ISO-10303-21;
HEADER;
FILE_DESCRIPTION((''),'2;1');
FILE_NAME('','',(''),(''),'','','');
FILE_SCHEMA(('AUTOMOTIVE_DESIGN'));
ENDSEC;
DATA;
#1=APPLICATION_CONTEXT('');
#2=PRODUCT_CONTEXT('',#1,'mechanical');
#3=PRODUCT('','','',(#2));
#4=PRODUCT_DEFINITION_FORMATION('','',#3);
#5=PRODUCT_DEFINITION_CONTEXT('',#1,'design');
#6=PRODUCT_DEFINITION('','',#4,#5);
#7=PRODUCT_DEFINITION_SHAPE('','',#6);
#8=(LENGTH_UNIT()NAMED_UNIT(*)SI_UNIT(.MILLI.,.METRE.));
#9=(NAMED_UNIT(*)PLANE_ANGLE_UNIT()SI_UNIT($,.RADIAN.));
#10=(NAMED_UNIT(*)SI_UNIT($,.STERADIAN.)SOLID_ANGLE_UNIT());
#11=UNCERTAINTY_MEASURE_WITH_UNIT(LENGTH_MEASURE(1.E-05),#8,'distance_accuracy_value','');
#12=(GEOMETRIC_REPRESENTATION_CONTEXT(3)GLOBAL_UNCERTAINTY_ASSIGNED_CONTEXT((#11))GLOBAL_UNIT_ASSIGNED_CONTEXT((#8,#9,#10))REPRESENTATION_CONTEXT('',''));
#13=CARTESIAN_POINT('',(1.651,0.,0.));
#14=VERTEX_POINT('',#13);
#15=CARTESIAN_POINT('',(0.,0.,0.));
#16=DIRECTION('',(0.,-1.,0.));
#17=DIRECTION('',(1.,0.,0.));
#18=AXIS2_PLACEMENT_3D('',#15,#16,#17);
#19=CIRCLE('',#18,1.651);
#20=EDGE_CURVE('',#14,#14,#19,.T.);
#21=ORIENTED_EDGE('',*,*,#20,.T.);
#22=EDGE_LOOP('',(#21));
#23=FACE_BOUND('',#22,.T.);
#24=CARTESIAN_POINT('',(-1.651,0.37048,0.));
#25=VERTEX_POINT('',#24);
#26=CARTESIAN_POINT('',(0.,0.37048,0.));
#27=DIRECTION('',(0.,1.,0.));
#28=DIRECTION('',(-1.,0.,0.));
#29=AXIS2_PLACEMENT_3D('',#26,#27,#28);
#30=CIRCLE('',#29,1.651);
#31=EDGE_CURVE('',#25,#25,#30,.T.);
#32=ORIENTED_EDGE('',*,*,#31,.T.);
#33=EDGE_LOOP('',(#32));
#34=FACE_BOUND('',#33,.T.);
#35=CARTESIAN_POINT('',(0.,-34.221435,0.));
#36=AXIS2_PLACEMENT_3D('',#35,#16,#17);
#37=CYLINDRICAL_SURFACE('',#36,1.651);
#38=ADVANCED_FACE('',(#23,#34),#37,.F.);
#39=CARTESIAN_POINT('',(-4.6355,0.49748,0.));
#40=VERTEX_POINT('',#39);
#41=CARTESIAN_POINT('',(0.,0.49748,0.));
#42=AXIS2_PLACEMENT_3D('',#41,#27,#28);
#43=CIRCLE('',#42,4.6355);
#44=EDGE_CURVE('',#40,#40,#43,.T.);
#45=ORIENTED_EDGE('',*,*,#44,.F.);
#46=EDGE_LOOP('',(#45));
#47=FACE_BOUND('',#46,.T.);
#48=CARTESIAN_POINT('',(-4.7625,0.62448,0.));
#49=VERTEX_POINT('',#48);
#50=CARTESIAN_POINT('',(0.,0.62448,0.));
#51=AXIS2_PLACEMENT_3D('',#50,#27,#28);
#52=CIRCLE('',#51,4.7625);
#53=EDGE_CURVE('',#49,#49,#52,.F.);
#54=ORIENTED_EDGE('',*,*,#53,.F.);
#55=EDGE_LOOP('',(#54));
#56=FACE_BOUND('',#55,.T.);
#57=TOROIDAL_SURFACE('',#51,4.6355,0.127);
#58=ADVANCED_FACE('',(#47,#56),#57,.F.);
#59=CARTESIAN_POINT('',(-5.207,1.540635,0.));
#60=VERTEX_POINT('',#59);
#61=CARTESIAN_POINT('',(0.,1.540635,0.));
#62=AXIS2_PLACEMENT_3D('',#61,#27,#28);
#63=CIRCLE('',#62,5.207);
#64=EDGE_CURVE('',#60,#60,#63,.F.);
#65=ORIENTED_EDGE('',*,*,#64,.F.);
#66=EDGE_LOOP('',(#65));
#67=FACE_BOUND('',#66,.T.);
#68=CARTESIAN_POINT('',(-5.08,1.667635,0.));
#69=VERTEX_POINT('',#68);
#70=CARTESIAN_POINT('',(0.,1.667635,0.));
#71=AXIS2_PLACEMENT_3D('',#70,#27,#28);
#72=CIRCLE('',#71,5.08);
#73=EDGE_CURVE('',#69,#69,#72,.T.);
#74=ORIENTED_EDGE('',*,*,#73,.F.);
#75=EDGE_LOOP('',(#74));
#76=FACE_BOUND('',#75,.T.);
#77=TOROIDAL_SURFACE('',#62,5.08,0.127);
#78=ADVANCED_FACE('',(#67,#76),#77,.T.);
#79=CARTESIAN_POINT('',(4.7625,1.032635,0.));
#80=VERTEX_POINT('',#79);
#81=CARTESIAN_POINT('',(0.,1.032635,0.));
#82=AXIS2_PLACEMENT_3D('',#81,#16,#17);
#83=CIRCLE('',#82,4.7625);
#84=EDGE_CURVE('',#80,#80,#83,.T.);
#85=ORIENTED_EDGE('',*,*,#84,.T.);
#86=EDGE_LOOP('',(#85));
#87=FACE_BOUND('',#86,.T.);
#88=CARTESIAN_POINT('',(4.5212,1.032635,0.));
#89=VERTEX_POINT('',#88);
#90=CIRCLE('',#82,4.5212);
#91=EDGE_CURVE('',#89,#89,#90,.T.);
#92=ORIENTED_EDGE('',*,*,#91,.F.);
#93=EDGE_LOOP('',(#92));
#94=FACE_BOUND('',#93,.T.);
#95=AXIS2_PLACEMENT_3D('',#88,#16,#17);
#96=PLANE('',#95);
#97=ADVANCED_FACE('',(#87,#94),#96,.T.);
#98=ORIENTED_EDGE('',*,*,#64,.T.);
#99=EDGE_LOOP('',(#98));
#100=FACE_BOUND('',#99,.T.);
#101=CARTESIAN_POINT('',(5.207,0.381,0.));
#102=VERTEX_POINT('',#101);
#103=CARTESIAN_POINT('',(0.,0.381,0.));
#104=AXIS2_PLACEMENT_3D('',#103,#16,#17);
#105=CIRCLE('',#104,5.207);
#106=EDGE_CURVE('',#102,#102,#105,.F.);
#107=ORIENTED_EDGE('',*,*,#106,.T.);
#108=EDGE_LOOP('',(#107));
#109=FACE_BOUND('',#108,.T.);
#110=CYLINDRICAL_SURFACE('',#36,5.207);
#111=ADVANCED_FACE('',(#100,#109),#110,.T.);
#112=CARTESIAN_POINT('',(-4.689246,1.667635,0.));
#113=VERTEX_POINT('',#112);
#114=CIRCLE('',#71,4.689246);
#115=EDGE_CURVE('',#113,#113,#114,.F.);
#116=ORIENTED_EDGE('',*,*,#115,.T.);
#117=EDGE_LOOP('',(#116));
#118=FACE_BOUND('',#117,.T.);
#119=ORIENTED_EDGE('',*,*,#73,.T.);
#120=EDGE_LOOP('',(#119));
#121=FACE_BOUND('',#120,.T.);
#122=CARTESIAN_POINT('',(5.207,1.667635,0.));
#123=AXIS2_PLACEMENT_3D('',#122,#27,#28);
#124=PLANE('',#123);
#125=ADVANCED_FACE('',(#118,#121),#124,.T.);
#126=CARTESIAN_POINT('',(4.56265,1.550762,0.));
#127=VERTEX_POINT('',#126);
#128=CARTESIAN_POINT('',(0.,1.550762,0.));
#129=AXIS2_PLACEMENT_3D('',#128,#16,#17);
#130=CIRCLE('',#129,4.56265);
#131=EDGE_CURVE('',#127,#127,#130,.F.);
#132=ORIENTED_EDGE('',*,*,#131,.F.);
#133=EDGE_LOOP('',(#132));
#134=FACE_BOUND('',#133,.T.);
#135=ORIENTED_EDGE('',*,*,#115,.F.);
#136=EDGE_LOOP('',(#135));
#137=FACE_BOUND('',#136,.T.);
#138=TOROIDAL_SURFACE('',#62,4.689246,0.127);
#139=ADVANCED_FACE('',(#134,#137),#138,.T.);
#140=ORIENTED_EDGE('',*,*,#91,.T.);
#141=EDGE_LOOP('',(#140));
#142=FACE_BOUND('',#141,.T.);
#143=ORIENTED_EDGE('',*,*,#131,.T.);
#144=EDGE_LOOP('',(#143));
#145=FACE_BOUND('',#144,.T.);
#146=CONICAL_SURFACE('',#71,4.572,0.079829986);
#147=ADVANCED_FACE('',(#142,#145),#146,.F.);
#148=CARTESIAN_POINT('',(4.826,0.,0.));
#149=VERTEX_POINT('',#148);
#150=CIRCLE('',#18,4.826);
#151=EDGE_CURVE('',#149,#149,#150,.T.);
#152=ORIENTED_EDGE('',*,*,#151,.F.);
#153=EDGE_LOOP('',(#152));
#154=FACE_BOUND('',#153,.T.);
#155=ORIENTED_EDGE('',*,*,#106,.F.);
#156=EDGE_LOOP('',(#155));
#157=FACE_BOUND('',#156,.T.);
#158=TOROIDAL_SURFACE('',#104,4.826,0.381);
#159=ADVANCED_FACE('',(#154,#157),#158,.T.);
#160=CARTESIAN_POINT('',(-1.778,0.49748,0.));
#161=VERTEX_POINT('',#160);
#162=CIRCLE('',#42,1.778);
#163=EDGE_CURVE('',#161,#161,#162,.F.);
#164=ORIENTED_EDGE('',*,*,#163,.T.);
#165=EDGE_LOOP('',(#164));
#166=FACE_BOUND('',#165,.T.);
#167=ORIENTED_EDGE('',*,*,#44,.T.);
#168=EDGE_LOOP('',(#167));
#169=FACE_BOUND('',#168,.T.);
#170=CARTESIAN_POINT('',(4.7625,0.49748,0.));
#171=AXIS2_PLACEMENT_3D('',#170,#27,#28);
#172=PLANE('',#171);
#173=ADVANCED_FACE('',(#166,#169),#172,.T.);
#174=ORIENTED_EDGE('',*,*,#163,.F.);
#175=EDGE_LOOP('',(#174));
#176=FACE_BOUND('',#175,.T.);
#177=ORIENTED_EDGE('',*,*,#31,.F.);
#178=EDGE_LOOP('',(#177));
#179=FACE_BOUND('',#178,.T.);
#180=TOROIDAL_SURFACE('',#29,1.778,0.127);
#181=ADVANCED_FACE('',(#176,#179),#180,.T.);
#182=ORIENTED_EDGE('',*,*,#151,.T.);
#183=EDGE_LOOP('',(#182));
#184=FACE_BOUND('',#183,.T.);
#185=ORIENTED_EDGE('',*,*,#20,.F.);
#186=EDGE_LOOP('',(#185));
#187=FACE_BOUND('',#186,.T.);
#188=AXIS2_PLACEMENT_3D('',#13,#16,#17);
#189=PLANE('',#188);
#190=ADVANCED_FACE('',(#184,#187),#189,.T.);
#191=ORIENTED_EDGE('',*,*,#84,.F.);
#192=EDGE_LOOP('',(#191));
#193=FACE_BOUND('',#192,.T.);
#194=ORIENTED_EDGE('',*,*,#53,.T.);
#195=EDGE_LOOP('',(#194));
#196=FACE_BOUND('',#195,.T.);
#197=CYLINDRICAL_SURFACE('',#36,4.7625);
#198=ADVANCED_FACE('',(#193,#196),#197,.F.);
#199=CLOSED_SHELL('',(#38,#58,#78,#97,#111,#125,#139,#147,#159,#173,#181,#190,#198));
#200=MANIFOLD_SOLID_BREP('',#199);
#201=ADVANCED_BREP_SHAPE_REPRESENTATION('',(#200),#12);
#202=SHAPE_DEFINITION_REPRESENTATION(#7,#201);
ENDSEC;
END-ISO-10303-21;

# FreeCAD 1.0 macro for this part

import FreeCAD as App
import Part
import Sketcher

V = App.Vector
Q = App.Units.Quantity


def edges_at(feature, points):
    """Names of the edges that pass closest to the given points."""
    edges = feature.Shape.Edges
    near = lambda p: min(range(len(edges)), key=lambda i: edges[i].distToShape(Part.Vertex(*p))[0])
    return sorted({f"Edge{near(p) + 1}" for p in points})


def add_polygon(sketch, points):
    """Adds a closed chain of lines whose ends are joined by coincident constraints."""
    first, n = sketch.GeometryCount, len(points)
    for a, b in zip(points, points[1:] + points[:1]):
        sketch.addGeometry(Part.LineSegment(App.Vector(*a, 0), App.Vector(*b, 0)), False)
    for i in range(n):
        sketch.addConstraint(Sketcher.Constraint("Coincident", first + i, 2, first + (i + 1) % n, 1))

doc = App.newDocument("Part")
params = doc.addObject("Spreadsheet::Sheet", "Params")
for row, (alias, value) in enumerate([
    ("sketch1_width", "0.14 in"),
    ("sketch1_width2", "0.025 in"),
    ("revolution_angle", "360 deg"),
    ("fillet_radius", "0.015 in"),
    ("fillet2_radius", "0.005 in"),
], start=1):
    params.set(f"A{row}", alias)
    params.set(f"B{row}", "=" + value)
    params.setAlias(f"B{row}", alias)

body = doc.addObject("PartDesign::Body", "Body")

# Sketch on XY plane
sketch1 = body.newObject("Sketcher::SketchObject", "Sketch")
sketch1.AttachmentSupport = (doc.getObject("XY_Plane"), [""])
sketch1.MapMode = "FlatFace"
add_polygon(sketch1, [(1.65, 0), (5.21, 0), (5.21, 1.67), (4.57, 1.67), (4.52, 1.03), (4.76, 1.03), (4.76, 0.5), (1.65, 0.5)])  # lines 0-7
sketch1.addConstraint([
    Sketcher.Constraint("Horizontal", 0),
    Sketcher.Constraint("Vertical", 1),
    Sketcher.Constraint("Horizontal", 2),
    Sketcher.Constraint("Horizontal", 4),
    Sketcher.Constraint("Vertical", 5),
    Sketcher.Constraint("Horizontal", 6),
    Sketcher.Constraint("Vertical", 7),
    Sketcher.Constraint("PointOnObject", 0, 2, -1),
    Sketcher.Constraint("DistanceX", 0, 1, 0, 2, Q("0.14 in")),
    Sketcher.Constraint("DistanceX", 2, 2, 2, 1, Q("0.025 in")),
    Sketcher.Constraint("DistanceX", -1, 1, 2, 2, Q("0.18 in")),
    Sketcher.Constraint("DistanceX", 4, 1, 4, 2, Q("0.0095 in")),
    Sketcher.Constraint("DistanceX", 6, 2, 6, 1, Q("0.1225 in")),
    Sketcher.Constraint("DistanceY", 3, 2, 2, 2, Q("0.025 in")),
    Sketcher.Constraint("DistanceY", 7, 2, 7, 1, Q("0.49748 mm")),
    Sketcher.Constraint("DistanceY", 1, 1, 1, 2, Q("1.667635 mm")),
])
sketch1.setExpression("Constraints[16]", "Params.sketch1_width")
sketch1.setExpression("Constraints[17]", "Params.sketch1_width2")
revolution = body.newObject("PartDesign::Revolution", "Revolution")
revolution.Profile = sketch1
revolution.ReferenceAxis = (sketch1, ["V_Axis"])
revolution.setExpression("Angle", "Params.revolution_angle")
doc.recompute()

fillet = body.newObject("PartDesign::Fillet", "Fillet")
fillet.Base = (revolution, edges_at(revolution, [(-5.207, 0, 0)]))
fillet.setExpression("Radius", "Params.fillet_radius")
doc.recompute()

fillet2 = body.newObject("PartDesign::Fillet", "Fillet001")
fillet2.Base = (fillet, edges_at(fillet, [
    (-1.651, 0.497, 0),
    (-4.763, 0.497, 0),
    (-4.572, 1.668, 0),
    (-5.207, 1.668, 0),
]))
fillet2.setExpression("Radius", "Params.fillet2_radius")

doc.recompute()
